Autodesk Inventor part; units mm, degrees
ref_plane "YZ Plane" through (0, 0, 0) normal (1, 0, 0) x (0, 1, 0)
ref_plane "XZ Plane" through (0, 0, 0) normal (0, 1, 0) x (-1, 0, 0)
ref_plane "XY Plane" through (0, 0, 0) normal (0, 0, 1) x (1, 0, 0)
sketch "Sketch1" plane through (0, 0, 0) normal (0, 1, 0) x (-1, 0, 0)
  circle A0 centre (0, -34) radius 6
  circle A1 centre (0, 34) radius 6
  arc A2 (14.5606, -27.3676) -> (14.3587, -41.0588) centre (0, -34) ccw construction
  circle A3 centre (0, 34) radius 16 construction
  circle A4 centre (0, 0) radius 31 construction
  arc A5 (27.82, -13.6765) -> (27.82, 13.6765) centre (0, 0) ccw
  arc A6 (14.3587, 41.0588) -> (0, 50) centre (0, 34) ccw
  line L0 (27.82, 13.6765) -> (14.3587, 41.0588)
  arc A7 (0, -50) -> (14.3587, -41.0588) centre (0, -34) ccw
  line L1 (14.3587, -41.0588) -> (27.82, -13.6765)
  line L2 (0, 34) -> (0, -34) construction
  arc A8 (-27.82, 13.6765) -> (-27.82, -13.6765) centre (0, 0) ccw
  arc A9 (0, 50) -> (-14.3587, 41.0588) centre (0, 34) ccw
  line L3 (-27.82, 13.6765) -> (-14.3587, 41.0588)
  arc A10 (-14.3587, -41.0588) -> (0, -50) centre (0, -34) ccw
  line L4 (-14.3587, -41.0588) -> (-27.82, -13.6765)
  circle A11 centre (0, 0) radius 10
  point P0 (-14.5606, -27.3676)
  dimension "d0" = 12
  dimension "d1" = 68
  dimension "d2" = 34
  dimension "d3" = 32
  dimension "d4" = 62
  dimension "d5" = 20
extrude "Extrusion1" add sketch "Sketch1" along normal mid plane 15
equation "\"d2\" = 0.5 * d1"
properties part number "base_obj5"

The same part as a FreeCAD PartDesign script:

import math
import FreeCAD as App
import Part
import Sketcher
from FreeCAD import Vector
Q = App.Units.Quantity

doc = App.newDocument("Part")
body = doc.addObject("PartDesign::Body", "Body")

# Sketch on XZ plane
sketch1 = body.newObject("Sketcher::SketchObject", "Sketch")
sketch1.AttachmentSupport = (doc.getObject("XZ_Plane"), [""])
sketch1.MapMode = "FlatFace"
sketch1.addGeometry([
    Part.LineSegment(Vector(-14.3587, -41.0588, 0), Vector(-27.82, -13.6765, 0)),  # 0
    Part.ArcOfCircle(Part.Circle(Vector(0, 0, 0), Vector(0, 0, 1), 30.999985), math.radians(153.820957), math.radians(206.179043)),  # 1
    Part.LineSegment(Vector(-27.82, 13.6765, 0), Vector(-14.3587, 41.0588, 0)),  # 2
    Part.ArcOfCircle(Part.Circle(Vector(0, 34, 0), Vector(0, 0, 1), 16), math.radians(90), math.radians(153.821066)),  # 3
    Part.ArcOfCircle(Part.Circle(Vector(0, 34, 0), Vector(0, 0, 1), 15.999966), math.radians(26.178934), math.radians(90)),  # 4
    Part.LineSegment(Vector(14.3587, 41.0588, 0), Vector(27.82, 13.6765, 0)),  # 5
    Part.ArcOfCircle(Part.Circle(Vector(0, 0, 0), Vector(0, 0, 1), 30.999985), math.radians(-26.179043), math.radians(26.179043)),  # 6
    Part.LineSegment(Vector(27.82, -13.6765, 0), Vector(14.3587, -41.0588, 0)),  # 7
    Part.ArcOfCircle(Part.Circle(Vector(0, -34, 0), Vector(0, 0, 1), 16), math.radians(-90), math.radians(-26.178934)),  # 8
    Part.ArcOfCircle(Part.Circle(Vector(0, -34, 0), Vector(0, 0, 1), 15.999966), math.radians(-153.821066), math.radians(-90)),  # 9
    Part.Circle(Vector(0, -34, 0), Vector(0, 0, 1), 6),  # 10
    Part.Circle(Vector(0, 0, 0), Vector(0, 0, 1), 10),  # 11
    Part.Circle(Vector(0, 34, 0), Vector(0, 0, 1), 6),  # 12
], False)
sketch1.addConstraint([
    Sketcher.Constraint("Tangent", 0, 2, 1, 2),
    Sketcher.Constraint("Tangent", 1, 1, 2, 1),
    Sketcher.Constraint("Tangent", 2, 2, 3, 2),
    Sketcher.Constraint("Tangent", 3, 1, 4, 2),
    Sketcher.Constraint("Tangent", 4, 1, 5, 1),
    Sketcher.Constraint("Tangent", 5, 2, 6, 2),
    Sketcher.Constraint("Tangent", 6, 1, 7, 1),
    Sketcher.Constraint("Tangent", 7, 2, 8, 2),
    Sketcher.Constraint("Tangent", 8, 1, 9, 2),
    Sketcher.Constraint("Tangent", 9, 1, 0, 1),
    Sketcher.Constraint("Coincident", 1, 3, -1, 1),
    Sketcher.Constraint("Coincident", 6, 3, -1, 1),
    Sketcher.Constraint("Coincident", 11, 3, -1, 1),
    Sketcher.Constraint("Coincident", 10, 3, 8, 3),
    Sketcher.Constraint("Coincident", 12, 3, 3, 3),
    Sketcher.Constraint("Equal", 3, 4),
    Sketcher.Constraint("Equal", 1, 6),
    Sketcher.Constraint("Equal", 4, 8),
    Sketcher.Constraint("Equal", 8, 9),
    Sketcher.Constraint("Equal", 10, 12),
    Sketcher.Constraint("Symmetric", 3, 3, 8, 3, -1, 1),
    Sketcher.Constraint("PointOnObject", 3, 3, -2),
    Sketcher.Constraint("PointOnObject", 3, 1, -2),
    Sketcher.Constraint("PointOnObject", 8, 1, -2),
    Sketcher.Constraint("Diameter", 10, Q("12 mm")),
    Sketcher.Constraint("Diameter", 11, Q("20 mm")),
    Sketcher.Constraint("Radius", 1, Q("31 mm")),
    Sketcher.Constraint("Radius", 3, Q("16 mm")),
    Sketcher.Constraint("DistanceY", -1, 1, 3, 3, Q("34 mm")),
])
pad1 = body.newObject("PartDesign::Pad", "Pad")
pad1.Profile = sketch1
pad1.Length = 15
pad1.Midplane = True

doc.recompute()
